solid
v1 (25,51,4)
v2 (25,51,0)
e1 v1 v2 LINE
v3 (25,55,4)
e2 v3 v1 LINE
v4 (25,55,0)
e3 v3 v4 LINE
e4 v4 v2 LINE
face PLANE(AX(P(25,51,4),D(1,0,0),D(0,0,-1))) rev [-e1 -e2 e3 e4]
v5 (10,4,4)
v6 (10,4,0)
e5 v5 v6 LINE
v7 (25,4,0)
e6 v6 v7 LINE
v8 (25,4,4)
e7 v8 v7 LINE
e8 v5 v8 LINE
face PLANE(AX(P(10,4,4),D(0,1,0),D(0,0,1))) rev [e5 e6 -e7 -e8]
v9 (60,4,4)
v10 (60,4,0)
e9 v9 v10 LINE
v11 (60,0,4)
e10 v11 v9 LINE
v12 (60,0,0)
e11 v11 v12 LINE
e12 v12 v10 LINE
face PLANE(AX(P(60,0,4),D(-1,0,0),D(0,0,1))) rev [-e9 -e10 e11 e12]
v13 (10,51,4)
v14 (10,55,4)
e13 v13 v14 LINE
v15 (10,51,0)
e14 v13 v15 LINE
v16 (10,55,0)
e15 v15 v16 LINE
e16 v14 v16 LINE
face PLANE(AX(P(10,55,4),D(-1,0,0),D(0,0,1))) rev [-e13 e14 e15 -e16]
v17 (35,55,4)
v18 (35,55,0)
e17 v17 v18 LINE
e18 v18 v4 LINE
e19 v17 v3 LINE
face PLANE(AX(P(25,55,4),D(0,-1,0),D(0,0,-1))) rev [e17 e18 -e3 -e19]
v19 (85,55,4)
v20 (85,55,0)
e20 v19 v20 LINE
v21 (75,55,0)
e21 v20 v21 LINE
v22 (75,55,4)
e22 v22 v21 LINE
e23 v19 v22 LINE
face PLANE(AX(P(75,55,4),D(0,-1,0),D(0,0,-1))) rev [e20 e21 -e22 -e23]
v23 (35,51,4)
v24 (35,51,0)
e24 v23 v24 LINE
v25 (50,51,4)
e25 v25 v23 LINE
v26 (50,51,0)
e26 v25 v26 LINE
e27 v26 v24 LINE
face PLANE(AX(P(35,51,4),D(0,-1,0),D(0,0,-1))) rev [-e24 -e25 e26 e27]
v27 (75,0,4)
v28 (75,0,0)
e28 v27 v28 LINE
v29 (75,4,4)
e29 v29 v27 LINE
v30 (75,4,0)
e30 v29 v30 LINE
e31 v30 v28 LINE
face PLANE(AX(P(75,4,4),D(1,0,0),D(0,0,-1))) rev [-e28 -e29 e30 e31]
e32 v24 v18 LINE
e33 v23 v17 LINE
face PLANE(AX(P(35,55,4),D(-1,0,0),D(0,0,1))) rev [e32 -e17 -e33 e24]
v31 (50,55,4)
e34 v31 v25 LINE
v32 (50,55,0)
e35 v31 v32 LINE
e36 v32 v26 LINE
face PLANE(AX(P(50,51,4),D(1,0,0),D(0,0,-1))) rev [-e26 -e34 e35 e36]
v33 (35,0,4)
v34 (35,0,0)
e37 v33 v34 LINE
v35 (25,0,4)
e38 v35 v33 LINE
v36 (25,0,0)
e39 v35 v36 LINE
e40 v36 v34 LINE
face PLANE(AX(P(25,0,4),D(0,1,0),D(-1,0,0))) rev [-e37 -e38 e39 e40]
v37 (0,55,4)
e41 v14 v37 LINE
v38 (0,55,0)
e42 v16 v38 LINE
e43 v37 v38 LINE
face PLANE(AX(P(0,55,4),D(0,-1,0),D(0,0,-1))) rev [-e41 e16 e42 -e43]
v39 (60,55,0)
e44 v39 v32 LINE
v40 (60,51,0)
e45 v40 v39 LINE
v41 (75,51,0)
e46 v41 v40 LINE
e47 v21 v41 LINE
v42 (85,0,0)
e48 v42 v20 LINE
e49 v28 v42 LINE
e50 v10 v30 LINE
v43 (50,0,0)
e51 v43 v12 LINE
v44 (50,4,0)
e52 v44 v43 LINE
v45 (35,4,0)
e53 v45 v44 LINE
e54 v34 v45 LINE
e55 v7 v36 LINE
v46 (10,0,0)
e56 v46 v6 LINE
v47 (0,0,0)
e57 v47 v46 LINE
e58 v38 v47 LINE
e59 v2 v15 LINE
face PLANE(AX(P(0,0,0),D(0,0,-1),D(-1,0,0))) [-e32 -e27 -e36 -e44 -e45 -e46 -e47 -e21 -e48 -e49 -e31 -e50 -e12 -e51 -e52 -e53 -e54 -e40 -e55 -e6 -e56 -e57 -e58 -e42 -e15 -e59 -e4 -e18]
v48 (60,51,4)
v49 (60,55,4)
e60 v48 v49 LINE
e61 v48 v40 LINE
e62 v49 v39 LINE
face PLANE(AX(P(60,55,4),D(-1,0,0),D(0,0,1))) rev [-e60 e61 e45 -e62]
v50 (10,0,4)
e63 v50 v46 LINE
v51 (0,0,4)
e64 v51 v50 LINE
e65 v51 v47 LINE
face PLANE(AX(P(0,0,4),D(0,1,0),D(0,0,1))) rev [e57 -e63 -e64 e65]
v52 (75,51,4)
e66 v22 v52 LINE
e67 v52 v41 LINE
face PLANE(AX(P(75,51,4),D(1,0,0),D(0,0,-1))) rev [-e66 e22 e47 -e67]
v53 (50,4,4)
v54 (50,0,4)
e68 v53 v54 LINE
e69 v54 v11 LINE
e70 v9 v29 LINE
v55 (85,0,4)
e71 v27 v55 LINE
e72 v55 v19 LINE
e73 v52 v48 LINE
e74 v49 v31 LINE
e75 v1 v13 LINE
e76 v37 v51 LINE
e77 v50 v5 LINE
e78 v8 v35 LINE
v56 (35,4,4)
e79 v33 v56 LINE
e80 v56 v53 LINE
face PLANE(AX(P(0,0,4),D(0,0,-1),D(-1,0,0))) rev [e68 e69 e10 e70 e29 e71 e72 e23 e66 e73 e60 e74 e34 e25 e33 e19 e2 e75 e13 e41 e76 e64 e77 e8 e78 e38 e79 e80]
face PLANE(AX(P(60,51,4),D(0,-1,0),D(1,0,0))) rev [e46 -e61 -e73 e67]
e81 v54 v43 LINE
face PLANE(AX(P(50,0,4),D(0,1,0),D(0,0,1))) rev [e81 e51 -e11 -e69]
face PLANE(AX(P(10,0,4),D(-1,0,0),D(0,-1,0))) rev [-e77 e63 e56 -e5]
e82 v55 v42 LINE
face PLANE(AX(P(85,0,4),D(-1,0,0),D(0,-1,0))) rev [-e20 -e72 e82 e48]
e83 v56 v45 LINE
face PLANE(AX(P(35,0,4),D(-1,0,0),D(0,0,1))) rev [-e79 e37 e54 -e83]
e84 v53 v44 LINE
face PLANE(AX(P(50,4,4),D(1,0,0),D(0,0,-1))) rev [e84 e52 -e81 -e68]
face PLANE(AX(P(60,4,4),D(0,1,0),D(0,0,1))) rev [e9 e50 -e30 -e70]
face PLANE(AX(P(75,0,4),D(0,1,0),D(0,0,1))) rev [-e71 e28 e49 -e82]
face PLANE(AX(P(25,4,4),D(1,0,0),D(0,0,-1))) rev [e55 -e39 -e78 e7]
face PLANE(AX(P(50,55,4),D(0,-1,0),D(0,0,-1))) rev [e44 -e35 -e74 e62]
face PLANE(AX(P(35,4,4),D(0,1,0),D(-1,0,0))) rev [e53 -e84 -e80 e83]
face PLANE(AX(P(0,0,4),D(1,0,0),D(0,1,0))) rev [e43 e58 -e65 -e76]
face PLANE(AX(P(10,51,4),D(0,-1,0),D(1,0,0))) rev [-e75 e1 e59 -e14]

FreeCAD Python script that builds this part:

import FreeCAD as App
import Part
import Sketcher

V = App.Vector


def add_polygon(sketch, points):
    """Adds a closed chain of lines whose ends are joined by coincident constraints."""
    first, n = sketch.GeometryCount, len(points)
    for a, b in zip(points, points[1:] + points[:1]):
        sketch.addGeometry(Part.LineSegment(App.Vector(*a, 0), App.Vector(*b, 0)), False)
    for i in range(n):
        sketch.addConstraint(Sketcher.Constraint("Coincident", first + i, 2, first + (i + 1) % n, 1))

doc = App.newDocument("Part")
body = doc.addObject("PartDesign::Body", "Body")

sketch1 = doc.addObject("Sketcher::SketchObject", "Sketch")
body.addObject(sketch1)
sketch1.AttachmentSupport = (doc.XY_Plane, [""])
sketch1.MapMode = "FlatFace"
add_polygon(sketch1, [(0, 0), (10, 0), (10, 4), (25, 4), (25, 0), (35, 0), (35, 4), (50, 4), (50, 0), (60, 0), (60, 4), (75, 4), (75, 0), (85, 0), (85, 55), (75, 55), (75, 51), (60, 51), (60, 55), (50, 55), (50, 51), (35, 51), (35, 55), (25, 55), (25, 51), (10, 51), (10, 55), (0, 55)])
sketch1.addConstraint(Sketcher.Constraint("Horizontal", 0))
sketch1.addConstraint(Sketcher.Constraint("Vertical", 1))
sketch1.addConstraint(Sketcher.Constraint("Horizontal", 2))
sketch1.addConstraint(Sketcher.Constraint("Vertical", 3))
sketch1.addConstraint(Sketcher.Constraint("Horizontal", 4))
sketch1.addConstraint(Sketcher.Constraint("Vertical", 5))
sketch1.addConstraint(Sketcher.Constraint("Horizontal", 6))
sketch1.addConstraint(Sketcher.Constraint("Vertical", 7))
sketch1.addConstraint(Sketcher.Constraint("Horizontal", 8))
sketch1.addConstraint(Sketcher.Constraint("Vertical", 9))
sketch1.addConstraint(Sketcher.Constraint("Horizontal", 10))
sketch1.addConstraint(Sketcher.Constraint("Vertical", 11))
sketch1.addConstraint(Sketcher.Constraint("Horizontal", 12))
sketch1.addConstraint(Sketcher.Constraint("Vertical", 13))
sketch1.addConstraint(Sketcher.Constraint("Horizontal", 14))
sketch1.addConstraint(Sketcher.Constraint("Vertical", 15))
sketch1.addConstraint(Sketcher.Constraint("Horizontal", 16))
sketch1.addConstraint(Sketcher.Constraint("Vertical", 17))
sketch1.addConstraint(Sketcher.Constraint("Horizontal", 18))
sketch1.addConstraint(Sketcher.Constraint("Vertical", 19))
sketch1.addConstraint(Sketcher.Constraint("Horizontal", 20))
sketch1.addConstraint(Sketcher.Constraint("Vertical", 21))
sketch1.addConstraint(Sketcher.Constraint("Horizontal", 22))
sketch1.addConstraint(Sketcher.Constraint("Vertical", 23))
sketch1.addConstraint(Sketcher.Constraint("Horizontal", 24))
sketch1.addConstraint(Sketcher.Constraint("Vertical", 25))
sketch1.addConstraint(Sketcher.Constraint("Horizontal", 26))
sketch1.addConstraint(Sketcher.Constraint("Vertical", 27))
sketch1.addConstraint(Sketcher.Constraint("Coincident", 27, 2, -1, 1))
sketch1.addConstraint(Sketcher.Constraint("PointOnObject", 3, 2, -1))
sketch1.addConstraint(Sketcher.Constraint("PointOnObject", 7, 2, -1))
sketch1.addConstraint(Sketcher.Constraint("PointOnObject", 11, 2, -1))
sketch1.addConstraint(Sketcher.Constraint("Horizontal", 2, 2, 5, 2))
sketch1.addConstraint(Sketcher.Constraint("Horizontal", 6, 2, 9, 2))
sketch1.addConstraint(Sketcher.Constraint("Horizontal", 14, 2, 17, 2))
sketch1.addConstraint(Sketcher.Constraint("Horizontal", 16, 2, 19, 2))
sketch1.addConstraint(Sketcher.Constraint("Horizontal", 18, 2, 21, 2))
sketch1.addConstraint(Sketcher.Constraint("Horizontal", 20, 2, 23, 2))
sketch1.addConstraint(Sketcher.Constraint("Horizontal", 22, 2, 25, 2))
sketch1.addConstraint(Sketcher.Constraint("Vertical", 11, 2, 14, 2))
sketch1.addConstraint(Sketcher.Constraint("Vertical", 9, 2, 16, 2))
sketch1.addConstraint(Sketcher.Constraint("Vertical", 7, 2, 18, 2))
sketch1.addConstraint(Sketcher.Constraint("Vertical", 5, 2, 20, 2))
sketch1.addConstraint(Sketcher.Constraint("Vertical", 3, 2, 22, 2))
sketch1.addConstraint(Sketcher.Constraint("Vertical", 1, 2, 24, 2))
sketch1.addConstraint(Sketcher.Constraint("Equal", 0, 4))
sketch1.addConstraint(Sketcher.Constraint("Equal", 2, 6))
sketch1.addConstraint(Sketcher.Constraint("Equal", 4, 8))
sketch1.addConstraint(Sketcher.Constraint("Equal", 6, 10))
sketch1.addConstraint(Sketcher.Constraint("Equal", 8, 12))
sketch1.addConstraint(Sketcher.Constraint("Equal", 11, 15))
sketch1.addConstraint(Sketcher.Constraint("DistanceX", 0, 1, 0, 2, 10.0))
sketch1.addConstraint(Sketcher.Constraint("DistanceX", 2, 1, 2, 2, 15.0))
sketch1.addConstraint(Sketcher.Constraint("DistanceY", 1, 1, 1, 2, 4.0))
sketch1.addConstraint(Sketcher.Constraint("DistanceY", 13, 1, 13, 2, 55.0))
pad1 = doc.addObject("PartDesign::Pad", "Pad")
body.addObject(pad1)
pad1.Profile = sketch1
pad1.Length = 4

doc.recompute()
